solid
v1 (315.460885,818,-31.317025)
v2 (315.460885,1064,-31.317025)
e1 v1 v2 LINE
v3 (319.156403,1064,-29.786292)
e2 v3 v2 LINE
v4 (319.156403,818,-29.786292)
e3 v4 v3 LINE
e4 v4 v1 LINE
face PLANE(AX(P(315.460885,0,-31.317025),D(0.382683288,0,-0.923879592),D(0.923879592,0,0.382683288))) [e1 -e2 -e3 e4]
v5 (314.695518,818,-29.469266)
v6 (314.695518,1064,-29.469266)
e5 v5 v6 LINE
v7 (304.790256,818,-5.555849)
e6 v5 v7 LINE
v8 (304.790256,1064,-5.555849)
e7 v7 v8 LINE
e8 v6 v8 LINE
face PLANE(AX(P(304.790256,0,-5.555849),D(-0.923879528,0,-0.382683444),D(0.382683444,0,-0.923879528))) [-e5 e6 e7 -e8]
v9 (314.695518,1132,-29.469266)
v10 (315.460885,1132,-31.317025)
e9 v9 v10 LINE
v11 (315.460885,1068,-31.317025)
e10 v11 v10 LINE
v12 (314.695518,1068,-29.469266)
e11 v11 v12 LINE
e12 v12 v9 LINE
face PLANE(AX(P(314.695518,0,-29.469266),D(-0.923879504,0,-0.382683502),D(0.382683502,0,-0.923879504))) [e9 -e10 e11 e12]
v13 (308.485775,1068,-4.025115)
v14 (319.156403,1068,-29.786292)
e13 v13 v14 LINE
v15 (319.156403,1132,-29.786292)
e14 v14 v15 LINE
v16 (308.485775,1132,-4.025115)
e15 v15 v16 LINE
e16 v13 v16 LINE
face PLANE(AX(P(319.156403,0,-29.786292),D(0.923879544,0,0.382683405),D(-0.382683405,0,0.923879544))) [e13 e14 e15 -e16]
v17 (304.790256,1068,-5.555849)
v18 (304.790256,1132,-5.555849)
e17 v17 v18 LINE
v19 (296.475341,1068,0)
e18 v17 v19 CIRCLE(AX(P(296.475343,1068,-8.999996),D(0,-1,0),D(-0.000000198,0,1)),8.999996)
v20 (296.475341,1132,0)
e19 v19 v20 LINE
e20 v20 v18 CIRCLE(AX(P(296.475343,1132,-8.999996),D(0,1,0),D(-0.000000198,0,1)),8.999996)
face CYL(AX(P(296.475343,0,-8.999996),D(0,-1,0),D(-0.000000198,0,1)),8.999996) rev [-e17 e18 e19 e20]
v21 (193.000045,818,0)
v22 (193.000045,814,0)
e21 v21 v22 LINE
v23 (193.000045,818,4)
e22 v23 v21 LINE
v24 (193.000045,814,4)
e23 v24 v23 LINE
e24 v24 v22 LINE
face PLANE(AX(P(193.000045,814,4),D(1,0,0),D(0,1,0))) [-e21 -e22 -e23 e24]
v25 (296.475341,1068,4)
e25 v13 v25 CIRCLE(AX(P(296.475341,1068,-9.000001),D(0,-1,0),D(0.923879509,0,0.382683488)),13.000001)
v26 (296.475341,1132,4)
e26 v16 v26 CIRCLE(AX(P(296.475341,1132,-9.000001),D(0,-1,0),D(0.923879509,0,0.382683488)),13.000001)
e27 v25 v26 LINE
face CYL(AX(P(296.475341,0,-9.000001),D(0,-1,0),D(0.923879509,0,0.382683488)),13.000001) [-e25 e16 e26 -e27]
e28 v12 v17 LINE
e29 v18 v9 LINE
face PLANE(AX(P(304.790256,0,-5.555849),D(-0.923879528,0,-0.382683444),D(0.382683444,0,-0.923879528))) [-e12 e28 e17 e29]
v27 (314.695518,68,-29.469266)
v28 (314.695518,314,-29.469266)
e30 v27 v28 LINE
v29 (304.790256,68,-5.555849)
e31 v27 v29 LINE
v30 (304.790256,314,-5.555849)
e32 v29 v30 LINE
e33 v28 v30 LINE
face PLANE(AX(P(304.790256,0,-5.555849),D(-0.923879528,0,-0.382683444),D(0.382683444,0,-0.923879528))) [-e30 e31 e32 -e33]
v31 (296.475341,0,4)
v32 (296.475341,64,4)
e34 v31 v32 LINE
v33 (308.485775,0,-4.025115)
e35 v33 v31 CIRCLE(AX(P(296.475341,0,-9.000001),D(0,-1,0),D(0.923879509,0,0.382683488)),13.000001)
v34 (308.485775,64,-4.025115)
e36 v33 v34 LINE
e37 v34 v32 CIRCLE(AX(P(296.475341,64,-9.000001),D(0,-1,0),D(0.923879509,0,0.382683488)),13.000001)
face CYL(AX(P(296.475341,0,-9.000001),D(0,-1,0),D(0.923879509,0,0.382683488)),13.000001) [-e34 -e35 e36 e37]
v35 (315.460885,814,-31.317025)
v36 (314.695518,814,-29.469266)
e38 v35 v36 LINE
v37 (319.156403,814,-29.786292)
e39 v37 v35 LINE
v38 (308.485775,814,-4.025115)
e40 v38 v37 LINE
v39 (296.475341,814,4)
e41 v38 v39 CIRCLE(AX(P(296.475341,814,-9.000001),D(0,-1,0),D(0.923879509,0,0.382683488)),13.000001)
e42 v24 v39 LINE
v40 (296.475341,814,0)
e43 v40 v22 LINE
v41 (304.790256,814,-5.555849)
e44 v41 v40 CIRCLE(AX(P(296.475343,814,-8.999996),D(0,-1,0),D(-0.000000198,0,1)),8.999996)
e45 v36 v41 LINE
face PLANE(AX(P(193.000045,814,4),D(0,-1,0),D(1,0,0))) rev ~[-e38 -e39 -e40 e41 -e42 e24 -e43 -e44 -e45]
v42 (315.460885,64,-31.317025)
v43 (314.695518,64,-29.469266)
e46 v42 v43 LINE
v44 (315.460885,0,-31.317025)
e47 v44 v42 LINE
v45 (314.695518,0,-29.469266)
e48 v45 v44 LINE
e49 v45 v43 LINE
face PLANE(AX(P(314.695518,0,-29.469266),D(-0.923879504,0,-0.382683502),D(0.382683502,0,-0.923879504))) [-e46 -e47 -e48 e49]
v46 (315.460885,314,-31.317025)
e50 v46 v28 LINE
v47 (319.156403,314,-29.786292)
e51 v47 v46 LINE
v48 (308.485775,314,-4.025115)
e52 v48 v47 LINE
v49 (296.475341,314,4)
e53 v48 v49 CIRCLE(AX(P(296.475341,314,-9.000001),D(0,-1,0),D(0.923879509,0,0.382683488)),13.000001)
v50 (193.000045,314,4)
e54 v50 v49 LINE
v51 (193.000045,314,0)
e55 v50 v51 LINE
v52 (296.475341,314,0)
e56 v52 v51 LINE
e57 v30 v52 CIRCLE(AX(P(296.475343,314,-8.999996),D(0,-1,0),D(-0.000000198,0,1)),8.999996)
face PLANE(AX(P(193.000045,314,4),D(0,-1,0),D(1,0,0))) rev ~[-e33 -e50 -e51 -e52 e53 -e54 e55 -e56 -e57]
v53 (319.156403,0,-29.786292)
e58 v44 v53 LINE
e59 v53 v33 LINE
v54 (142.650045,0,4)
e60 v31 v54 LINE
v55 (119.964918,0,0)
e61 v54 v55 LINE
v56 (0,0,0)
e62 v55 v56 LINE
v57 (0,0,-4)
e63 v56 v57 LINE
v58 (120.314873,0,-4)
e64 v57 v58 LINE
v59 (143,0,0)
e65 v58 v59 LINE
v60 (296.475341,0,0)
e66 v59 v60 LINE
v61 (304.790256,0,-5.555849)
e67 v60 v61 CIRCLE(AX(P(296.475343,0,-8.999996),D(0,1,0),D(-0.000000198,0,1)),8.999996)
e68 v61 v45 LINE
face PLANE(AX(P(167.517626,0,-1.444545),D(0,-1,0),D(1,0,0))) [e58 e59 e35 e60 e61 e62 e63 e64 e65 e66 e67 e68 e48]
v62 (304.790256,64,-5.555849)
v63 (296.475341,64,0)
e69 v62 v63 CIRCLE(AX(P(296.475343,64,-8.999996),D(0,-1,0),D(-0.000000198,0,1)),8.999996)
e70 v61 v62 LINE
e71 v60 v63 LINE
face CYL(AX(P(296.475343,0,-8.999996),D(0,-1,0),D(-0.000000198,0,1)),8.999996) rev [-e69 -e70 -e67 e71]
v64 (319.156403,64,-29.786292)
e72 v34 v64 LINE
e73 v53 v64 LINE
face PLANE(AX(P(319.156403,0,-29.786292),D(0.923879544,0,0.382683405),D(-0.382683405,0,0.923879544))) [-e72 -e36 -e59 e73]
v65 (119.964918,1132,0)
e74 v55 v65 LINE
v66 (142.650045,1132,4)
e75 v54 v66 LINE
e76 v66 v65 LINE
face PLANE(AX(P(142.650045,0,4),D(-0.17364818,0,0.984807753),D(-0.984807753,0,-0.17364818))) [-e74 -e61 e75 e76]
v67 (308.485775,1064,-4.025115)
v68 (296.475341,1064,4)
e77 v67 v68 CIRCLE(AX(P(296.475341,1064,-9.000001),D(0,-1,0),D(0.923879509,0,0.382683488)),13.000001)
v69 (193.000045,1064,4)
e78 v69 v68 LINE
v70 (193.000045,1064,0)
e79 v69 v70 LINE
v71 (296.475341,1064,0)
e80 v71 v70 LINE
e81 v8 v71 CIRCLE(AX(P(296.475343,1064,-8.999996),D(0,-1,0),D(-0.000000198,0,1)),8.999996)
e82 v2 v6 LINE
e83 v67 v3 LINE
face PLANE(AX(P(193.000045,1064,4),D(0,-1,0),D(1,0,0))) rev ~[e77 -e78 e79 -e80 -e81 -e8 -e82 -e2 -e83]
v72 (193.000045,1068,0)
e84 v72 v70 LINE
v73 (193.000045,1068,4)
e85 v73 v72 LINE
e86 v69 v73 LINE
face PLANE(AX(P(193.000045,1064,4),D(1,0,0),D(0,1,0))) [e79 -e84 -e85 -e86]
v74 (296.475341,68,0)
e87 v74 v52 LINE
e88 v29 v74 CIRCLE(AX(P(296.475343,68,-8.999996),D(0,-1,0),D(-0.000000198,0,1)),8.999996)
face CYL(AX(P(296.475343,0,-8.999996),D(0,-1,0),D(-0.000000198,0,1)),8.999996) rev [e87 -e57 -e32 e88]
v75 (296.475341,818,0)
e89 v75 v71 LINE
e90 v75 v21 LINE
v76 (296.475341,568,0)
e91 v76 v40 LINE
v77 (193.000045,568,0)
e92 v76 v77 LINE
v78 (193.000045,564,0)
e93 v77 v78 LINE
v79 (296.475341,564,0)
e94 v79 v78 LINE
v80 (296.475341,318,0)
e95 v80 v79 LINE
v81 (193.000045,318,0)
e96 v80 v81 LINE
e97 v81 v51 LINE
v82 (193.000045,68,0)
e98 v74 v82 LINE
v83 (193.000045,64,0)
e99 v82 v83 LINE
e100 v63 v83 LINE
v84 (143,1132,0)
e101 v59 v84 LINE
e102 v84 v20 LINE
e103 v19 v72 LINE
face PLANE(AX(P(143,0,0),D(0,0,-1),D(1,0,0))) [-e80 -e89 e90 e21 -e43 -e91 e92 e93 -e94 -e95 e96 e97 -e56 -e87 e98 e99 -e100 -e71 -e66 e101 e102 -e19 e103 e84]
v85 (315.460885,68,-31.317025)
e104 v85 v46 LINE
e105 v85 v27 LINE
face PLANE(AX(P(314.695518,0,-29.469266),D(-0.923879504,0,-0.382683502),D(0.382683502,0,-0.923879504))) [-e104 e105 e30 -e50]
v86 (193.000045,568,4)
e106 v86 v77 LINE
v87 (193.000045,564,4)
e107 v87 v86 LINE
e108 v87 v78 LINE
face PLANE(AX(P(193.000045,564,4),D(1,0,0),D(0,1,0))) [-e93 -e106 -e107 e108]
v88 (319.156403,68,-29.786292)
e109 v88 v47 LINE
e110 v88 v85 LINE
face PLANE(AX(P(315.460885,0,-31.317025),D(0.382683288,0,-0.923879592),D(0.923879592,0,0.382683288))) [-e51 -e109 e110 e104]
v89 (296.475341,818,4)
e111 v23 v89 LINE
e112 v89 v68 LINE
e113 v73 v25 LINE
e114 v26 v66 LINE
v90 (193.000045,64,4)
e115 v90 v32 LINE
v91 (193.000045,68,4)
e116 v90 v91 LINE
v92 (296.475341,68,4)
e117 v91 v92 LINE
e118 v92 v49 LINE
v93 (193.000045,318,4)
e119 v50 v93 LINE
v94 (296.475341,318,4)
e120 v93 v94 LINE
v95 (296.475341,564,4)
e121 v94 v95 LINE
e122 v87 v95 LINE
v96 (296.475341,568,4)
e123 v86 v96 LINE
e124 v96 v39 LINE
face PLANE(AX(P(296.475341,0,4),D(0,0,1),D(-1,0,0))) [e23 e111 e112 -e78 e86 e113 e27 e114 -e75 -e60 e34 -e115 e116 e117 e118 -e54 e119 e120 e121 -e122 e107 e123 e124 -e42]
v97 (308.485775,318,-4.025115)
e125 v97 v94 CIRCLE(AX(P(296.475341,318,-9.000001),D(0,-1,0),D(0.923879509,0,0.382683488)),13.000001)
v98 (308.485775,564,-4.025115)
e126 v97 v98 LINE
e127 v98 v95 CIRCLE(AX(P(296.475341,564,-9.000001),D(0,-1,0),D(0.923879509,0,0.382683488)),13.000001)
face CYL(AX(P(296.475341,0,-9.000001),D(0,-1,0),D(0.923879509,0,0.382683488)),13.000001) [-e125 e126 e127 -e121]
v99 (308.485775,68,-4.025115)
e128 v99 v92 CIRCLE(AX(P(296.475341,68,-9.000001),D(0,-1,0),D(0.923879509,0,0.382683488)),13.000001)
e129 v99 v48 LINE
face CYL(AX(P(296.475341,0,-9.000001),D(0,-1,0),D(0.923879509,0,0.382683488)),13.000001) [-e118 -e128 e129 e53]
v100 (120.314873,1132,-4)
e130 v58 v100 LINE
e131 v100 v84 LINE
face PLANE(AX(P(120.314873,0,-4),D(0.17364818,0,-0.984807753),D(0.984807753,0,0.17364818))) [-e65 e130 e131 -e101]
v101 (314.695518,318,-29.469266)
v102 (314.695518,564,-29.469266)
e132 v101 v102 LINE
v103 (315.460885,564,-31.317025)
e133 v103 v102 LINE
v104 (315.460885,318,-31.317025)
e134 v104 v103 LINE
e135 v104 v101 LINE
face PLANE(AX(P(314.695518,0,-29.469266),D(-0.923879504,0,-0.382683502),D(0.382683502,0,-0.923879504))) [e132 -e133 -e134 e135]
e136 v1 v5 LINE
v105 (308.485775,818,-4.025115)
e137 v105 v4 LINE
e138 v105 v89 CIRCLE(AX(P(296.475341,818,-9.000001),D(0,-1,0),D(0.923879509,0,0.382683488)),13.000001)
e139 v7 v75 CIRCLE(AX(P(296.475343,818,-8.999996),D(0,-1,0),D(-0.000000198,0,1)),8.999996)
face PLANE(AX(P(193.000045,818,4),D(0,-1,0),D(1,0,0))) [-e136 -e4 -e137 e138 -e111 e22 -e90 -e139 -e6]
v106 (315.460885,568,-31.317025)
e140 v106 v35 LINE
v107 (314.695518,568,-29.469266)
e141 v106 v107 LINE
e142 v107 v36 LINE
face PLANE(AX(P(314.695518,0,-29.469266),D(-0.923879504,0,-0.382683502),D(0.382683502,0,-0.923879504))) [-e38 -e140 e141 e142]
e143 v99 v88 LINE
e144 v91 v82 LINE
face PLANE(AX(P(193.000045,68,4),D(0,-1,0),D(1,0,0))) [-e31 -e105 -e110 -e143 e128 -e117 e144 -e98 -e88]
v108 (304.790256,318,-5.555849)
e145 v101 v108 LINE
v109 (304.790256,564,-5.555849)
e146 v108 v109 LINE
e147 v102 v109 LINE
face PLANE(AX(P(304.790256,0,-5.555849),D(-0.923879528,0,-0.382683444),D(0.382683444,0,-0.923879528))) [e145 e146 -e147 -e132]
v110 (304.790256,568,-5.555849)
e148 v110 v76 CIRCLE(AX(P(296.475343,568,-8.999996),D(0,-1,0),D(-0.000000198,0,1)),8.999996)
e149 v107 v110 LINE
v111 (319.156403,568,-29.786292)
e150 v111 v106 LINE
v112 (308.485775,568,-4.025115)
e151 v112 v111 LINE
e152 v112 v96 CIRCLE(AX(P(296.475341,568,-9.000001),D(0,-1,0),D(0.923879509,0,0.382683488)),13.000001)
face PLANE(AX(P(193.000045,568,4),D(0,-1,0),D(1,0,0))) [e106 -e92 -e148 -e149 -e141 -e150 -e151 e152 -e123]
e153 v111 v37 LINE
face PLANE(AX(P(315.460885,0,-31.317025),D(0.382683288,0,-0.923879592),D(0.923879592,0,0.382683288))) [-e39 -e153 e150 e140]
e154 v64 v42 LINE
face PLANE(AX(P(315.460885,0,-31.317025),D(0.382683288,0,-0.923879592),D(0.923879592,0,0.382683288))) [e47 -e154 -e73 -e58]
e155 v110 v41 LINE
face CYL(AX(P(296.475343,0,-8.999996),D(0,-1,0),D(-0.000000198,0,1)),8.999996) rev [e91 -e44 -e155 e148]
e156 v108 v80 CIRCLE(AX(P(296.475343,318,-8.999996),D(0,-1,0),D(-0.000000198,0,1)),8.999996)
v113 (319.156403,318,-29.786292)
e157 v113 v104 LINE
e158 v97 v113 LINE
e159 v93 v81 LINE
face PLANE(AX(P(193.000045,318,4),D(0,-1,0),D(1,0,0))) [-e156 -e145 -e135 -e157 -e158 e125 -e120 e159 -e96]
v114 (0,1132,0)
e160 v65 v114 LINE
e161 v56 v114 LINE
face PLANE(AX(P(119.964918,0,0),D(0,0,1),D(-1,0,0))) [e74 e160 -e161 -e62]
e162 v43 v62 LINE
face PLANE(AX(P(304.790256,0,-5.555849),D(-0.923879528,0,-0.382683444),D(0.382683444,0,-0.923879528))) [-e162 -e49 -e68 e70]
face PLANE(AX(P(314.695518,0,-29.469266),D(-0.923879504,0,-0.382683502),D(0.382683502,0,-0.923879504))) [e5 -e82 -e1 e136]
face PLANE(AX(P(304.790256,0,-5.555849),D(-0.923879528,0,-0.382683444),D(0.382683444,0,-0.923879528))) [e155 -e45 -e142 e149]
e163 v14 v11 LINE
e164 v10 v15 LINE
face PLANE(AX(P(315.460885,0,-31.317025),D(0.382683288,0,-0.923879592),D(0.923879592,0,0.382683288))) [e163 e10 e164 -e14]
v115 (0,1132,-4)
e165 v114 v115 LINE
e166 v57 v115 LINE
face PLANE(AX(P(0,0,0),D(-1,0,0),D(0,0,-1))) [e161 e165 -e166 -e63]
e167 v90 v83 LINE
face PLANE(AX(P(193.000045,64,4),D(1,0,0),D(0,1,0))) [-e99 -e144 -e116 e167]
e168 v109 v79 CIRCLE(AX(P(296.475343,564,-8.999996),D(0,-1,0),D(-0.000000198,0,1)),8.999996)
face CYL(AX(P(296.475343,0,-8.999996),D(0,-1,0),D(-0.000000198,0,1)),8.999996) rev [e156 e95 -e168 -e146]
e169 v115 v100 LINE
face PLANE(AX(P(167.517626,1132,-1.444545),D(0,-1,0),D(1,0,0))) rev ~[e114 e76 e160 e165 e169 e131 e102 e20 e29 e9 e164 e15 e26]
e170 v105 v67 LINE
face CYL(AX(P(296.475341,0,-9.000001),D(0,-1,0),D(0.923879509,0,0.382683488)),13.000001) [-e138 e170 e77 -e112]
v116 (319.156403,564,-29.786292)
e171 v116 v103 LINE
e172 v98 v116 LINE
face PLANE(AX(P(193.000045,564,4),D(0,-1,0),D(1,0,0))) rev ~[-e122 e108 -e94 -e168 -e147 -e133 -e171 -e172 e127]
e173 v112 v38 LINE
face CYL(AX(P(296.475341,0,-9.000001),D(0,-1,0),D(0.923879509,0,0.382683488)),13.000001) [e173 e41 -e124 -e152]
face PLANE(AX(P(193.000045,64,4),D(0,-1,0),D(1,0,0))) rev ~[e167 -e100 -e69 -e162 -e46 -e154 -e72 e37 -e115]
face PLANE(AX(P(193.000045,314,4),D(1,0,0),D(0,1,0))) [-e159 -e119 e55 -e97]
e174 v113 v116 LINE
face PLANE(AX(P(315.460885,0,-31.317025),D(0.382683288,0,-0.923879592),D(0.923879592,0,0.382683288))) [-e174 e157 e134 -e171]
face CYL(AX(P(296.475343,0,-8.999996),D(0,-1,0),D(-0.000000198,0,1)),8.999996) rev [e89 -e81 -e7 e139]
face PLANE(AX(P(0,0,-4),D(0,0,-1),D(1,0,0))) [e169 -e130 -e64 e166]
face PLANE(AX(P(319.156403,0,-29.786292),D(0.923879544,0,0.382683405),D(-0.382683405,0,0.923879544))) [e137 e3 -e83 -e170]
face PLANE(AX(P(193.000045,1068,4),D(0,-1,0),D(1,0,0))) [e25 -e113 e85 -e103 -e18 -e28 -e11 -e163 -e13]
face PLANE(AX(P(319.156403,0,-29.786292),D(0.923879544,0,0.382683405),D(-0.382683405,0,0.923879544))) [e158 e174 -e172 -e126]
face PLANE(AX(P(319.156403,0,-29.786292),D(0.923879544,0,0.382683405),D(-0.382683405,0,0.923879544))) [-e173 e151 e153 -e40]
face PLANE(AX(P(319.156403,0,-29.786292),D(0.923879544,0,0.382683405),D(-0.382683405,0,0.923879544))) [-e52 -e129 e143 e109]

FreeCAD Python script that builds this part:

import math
import FreeCAD as App
import Part
import Sketcher
from FreeCAD import Vector
Q = App.Units.Quantity

doc = App.newDocument("Part")
body = doc.addObject("PartDesign::Body", "Body")

# Sketch on XZ plane
sketch1 = body.newObject("Sketcher::SketchObject", "Sketch")
sketch1.AttachmentSupport = (doc.getObject("XZ_Plane"), [""])
sketch1.MapMode = "FlatFace"
sketch1.addGeometry([
    Part.LineSegment(Vector(120, 0, 0), Vector(0, 0, 0)),  # 0
    Part.LineSegment(Vector(0, 0, 0), Vector(0, -4, 0)),  # 1
    Part.LineSegment(Vector(0, -4, 0), Vector(120.3, -4, 0)),  # 2
    Part.LineSegment(Vector(120.3, -4, 0), Vector(143, 0, 0)),  # 3
    Part.LineSegment(Vector(143, 0, 0), Vector(296.5, 0, 0)),  # 4
    Part.ArcOfCircle(Part.Circle(Vector(296.5, -9, 0), Vector(0, 0, 1), 9), math.radians(22), math.radians(90)),  # 5
    Part.LineSegment(Vector(304.8, -5.6, 0), Vector(314.7, -29.5, 0)),  # 6
    Part.LineSegment(Vector(314.7, -29.5, 0), Vector(315.5, -31.3, 0)),  # 7
    Part.LineSegment(Vector(315.5, -31.3, 0), Vector(319.2, -29.8, 0)),  # 8
    Part.LineSegment(Vector(319.2, -29.8, 0), Vector(308.5, -4, 0)),  # 9
    Part.ArcOfCircle(Part.Circle(Vector(296.5, -9, 0), Vector(0, 0, 1), 13), math.radians(23), math.radians(90)),  # 10
    Part.LineSegment(Vector(296.5, 4, 0), Vector(142.7, 4, 0)),  # 11
    Part.LineSegment(Vector(142.7, 4, 0), Vector(120, 0, 0)),  # 12
], False)
sketch1.addConstraint([
    Sketcher.Constraint("Coincident", 0, 2, 1, 1),
    Sketcher.Constraint("Coincident", 1, 2, 2, 1),
    Sketcher.Constraint("Coincident", 2, 2, 3, 1),
    Sketcher.Constraint("Coincident", 3, 2, 4, 1),
    Sketcher.Constraint("Tangent", 4, 2, 5, 2),
    Sketcher.Constraint("Tangent", 5, 1, 6, 1),
    Sketcher.Constraint("Coincident", 6, 2, 7, 1),
    Sketcher.Constraint("Coincident", 7, 2, 8, 1),
    Sketcher.Constraint("Coincident", 8, 2, 9, 1),
    Sketcher.Constraint("Tangent", 9, 2, 10, 1),
    Sketcher.Constraint("Tangent", 10, 2, 11, 1),
    Sketcher.Constraint("Coincident", 11, 2, 12, 1),
    Sketcher.Constraint("Coincident", 12, 2, 0, 1),
    Sketcher.Constraint("Horizontal", 0),
    Sketcher.Constraint("Vertical", 1),
    Sketcher.Constraint("Horizontal", 2),
    Sketcher.Constraint("Horizontal", 4),
    Sketcher.Constraint("Horizontal", 11),
    Sketcher.Constraint("Coincident", 0, 2, -1, 1),
    Sketcher.Constraint("Coincident", 10, 3, 5, 3),
    Sketcher.Constraint("PointOnObject", 3, 2, -1),
    Sketcher.Constraint("Parallel", 6, 7),
    Sketcher.Constraint("Perpendicular", 7, 8),
    Sketcher.Constraint("Perpendicular", 8, 9),
    Sketcher.Constraint("Parallel", 3, 12),
    Sketcher.Constraint("Equal", 3, 12),
    Sketcher.Constraint("Radius", 10, Q("13.000001 mm")),
    Sketcher.Constraint("DistanceY", 1, 2, 1, 1, Q("4 mm")),
    Sketcher.Constraint("Angle", 3, Q("10 deg")),
    Sketcher.Constraint("Distance", 7, Q("2 mm")),
    Sketcher.Constraint("DistanceX", -1, 1, 3, 2, Q("143 mm")),
    Sketcher.Constraint("Angle", 6, Q("-67.499999 deg")),
    Sketcher.Constraint("DistanceX", 4, 1, 4, 2, Q("153.475341 mm")),
    Sketcher.Constraint("DistanceX", 0, 2, 0, 1, Q("119.964918 mm")),
    Sketcher.Constraint("DistanceX", -1, 1, 6, 2, Q("314.695518 mm")),
])
pad1 = body.newObject("PartDesign::Pad", "Pad")
pad1.Profile = sketch1
pad1.Length = 1132
pad1.Reversed = True

# Sketch on XY plane
sketch2 = body.newObject("Sketcher::SketchObject", "Sketch001")
sketch2.AttachmentSupport = (doc.getObject("XY_Plane"), [""])
sketch2.MapMode = "FlatFace"
sketch2.AttachmentOffset = App.Placement(Vector(0, 0, 4), App.Rotation())
sketch2.addGeometry([
    Part.LineSegment(Vector(193, 68, 0), Vector(193, 64, 0)),  # 0
    Part.LineSegment(Vector(193, 64, 0), Vector(334.1, 64, 0)),  # 1
    Part.LineSegment(Vector(334.1, 64, 0), Vector(334.1, 68, 0)),  # 2
    Part.LineSegment(Vector(334.1, 68, 0), Vector(193, 68, 0)),  # 3
    Part.LineSegment(Vector(193, 318, 0), Vector(193, 314, 0)),  # 4
    Part.LineSegment(Vector(193, 314, 0), Vector(334.1, 314, 0)),  # 5
    Part.LineSegment(Vector(334.1, 314, 0), Vector(334.1, 318, 0)),  # 6
    Part.LineSegment(Vector(334.1, 318, 0), Vector(193, 318, 0)),  # 7
    Part.LineSegment(Vector(193, 568, 0), Vector(193, 564, 0)),  # 8
    Part.LineSegment(Vector(193, 564, 0), Vector(334.1, 564, 0)),  # 9
    Part.LineSegment(Vector(334.1, 564, 0), Vector(334.1, 568, 0)),  # 10
    Part.LineSegment(Vector(334.1, 568, 0), Vector(193, 568, 0)),  # 11
    Part.LineSegment(Vector(193, 818, 0), Vector(193, 814, 0)),  # 12
    Part.LineSegment(Vector(193, 814, 0), Vector(334.1, 814, 0)),  # 13
    Part.LineSegment(Vector(334.1, 814, 0), Vector(334.1, 818, 0)),  # 14
    Part.LineSegment(Vector(334.1, 818, 0), Vector(193, 818, 0)),  # 15
    Part.LineSegment(Vector(193, 1068, 0), Vector(193, 1064, 0)),  # 16
    Part.LineSegment(Vector(193, 1064, 0), Vector(334.1, 1064, 0)),  # 17
    Part.LineSegment(Vector(334.1, 1064, 0), Vector(334.1, 1068, 0)),  # 18
    Part.LineSegment(Vector(334.1, 1068, 0), Vector(193, 1068, 0)),  # 19
], False)
sketch2.addConstraint([
    Sketcher.Constraint("Coincident", 0, 2, 1, 1),
    Sketcher.Constraint("Coincident", 1, 2, 2, 1),
    Sketcher.Constraint("Coincident", 2, 2, 3, 1),
    Sketcher.Constraint("Coincident", 3, 2, 0, 1),
    Sketcher.Constraint("Coincident", 4, 2, 5, 1),
    Sketcher.Constraint("Coincident", 5, 2, 6, 1),
    Sketcher.Constraint("Coincident", 6, 2, 7, 1),
    Sketcher.Constraint("Coincident", 7, 2, 4, 1),
    Sketcher.Constraint("Coincident", 8, 2, 9, 1),
    Sketcher.Constraint("Coincident", 9, 2, 10, 1),
    Sketcher.Constraint("Coincident", 10, 2, 11, 1),
    Sketcher.Constraint("Coincident", 11, 2, 8, 1),
    Sketcher.Constraint("Coincident", 12, 2, 13, 1),
    Sketcher.Constraint("Coincident", 13, 2, 14, 1),
    Sketcher.Constraint("Coincident", 14, 2, 15, 1),
    Sketcher.Constraint("Coincident", 15, 2, 12, 1),
    Sketcher.Constraint("Coincident", 16, 2, 17, 1),
    Sketcher.Constraint("Coincident", 17, 2, 18, 1),
    Sketcher.Constraint("Coincident", 18, 2, 19, 1),
    Sketcher.Constraint("Coincident", 19, 2, 16, 1),
    Sketcher.Constraint("Vertical", 0),
    Sketcher.Constraint("Horizontal", 1),
    Sketcher.Constraint("Vertical", 2),
    Sketcher.Constraint("Horizontal", 3),
    Sketcher.Constraint("Vertical", 4),
    Sketcher.Constraint("Horizontal", 5),
    Sketcher.Constraint("Vertical", 6),
    Sketcher.Constraint("Horizontal", 7),
    Sketcher.Constraint("Vertical", 8),
    Sketcher.Constraint("Horizontal", 9),
    Sketcher.Constraint("Vertical", 10),
    Sketcher.Constraint("Horizontal", 11),
    Sketcher.Constraint("Vertical", 12),
    Sketcher.Constraint("Horizontal", 13),
    Sketcher.Constraint("Vertical", 14),
    Sketcher.Constraint("Horizontal", 15),
    Sketcher.Constraint("Vertical", 16),
    Sketcher.Constraint("Horizontal", 17),
    Sketcher.Constraint("Vertical", 18),
    Sketcher.Constraint("Horizontal", 19),
    Sketcher.Constraint("Vertical", 3, 2, 4, 2),
    Sketcher.Constraint("Vertical", 2, 2, 5, 2),
    Sketcher.Constraint("Vertical", 7, 2, 8, 2),
    Sketcher.Constraint("Vertical", 6, 2, 9, 2),
    Sketcher.Constraint("Vertical", 11, 2, 12, 2),
    Sketcher.Constraint("Vertical", 10, 2, 13, 2),
    Sketcher.Constraint("Vertical", 15, 2, 16, 2),
    Sketcher.Constraint("Vertical", 14, 2, 17, 2),
    Sketcher.Constraint("Equal", 2, 4),
    Sketcher.Constraint("Equal", 6, 8),
    Sketcher.Constraint("Equal", 10, 12),
    Sketcher.Constraint("Equal", 14, 16),
    Sketcher.Constraint("DistanceY", 0, 2, 0, 1, Q("4 mm")),
    Sketcher.Constraint("DistanceY", -1, 1, 0, 2, Q("64 mm")),
    Sketcher.Constraint("DistanceY", -1, 1, 4, 2, Q("314 mm")),
    Sketcher.Constraint("DistanceY", -1, 1, 8, 2, Q("564 mm")),
    Sketcher.Constraint("DistanceY", -1, 1, 12, 2, Q("814 mm")),
    Sketcher.Constraint("DistanceY", -1, 1, 16, 2, Q("1064 mm")),
    Sketcher.Constraint("DistanceX", 1, 1, 1, 2, Q("141.117851 mm")),
    Sketcher.Constraint("DistanceX", -1, 1, 0, 2, Q("193.000045 mm")),
])
pocket1 = body.newObject("PartDesign::Pocket", "Pocket")
pocket1.Profile = sketch2
pocket1.Type = "ThroughAll"

doc.recompute()
